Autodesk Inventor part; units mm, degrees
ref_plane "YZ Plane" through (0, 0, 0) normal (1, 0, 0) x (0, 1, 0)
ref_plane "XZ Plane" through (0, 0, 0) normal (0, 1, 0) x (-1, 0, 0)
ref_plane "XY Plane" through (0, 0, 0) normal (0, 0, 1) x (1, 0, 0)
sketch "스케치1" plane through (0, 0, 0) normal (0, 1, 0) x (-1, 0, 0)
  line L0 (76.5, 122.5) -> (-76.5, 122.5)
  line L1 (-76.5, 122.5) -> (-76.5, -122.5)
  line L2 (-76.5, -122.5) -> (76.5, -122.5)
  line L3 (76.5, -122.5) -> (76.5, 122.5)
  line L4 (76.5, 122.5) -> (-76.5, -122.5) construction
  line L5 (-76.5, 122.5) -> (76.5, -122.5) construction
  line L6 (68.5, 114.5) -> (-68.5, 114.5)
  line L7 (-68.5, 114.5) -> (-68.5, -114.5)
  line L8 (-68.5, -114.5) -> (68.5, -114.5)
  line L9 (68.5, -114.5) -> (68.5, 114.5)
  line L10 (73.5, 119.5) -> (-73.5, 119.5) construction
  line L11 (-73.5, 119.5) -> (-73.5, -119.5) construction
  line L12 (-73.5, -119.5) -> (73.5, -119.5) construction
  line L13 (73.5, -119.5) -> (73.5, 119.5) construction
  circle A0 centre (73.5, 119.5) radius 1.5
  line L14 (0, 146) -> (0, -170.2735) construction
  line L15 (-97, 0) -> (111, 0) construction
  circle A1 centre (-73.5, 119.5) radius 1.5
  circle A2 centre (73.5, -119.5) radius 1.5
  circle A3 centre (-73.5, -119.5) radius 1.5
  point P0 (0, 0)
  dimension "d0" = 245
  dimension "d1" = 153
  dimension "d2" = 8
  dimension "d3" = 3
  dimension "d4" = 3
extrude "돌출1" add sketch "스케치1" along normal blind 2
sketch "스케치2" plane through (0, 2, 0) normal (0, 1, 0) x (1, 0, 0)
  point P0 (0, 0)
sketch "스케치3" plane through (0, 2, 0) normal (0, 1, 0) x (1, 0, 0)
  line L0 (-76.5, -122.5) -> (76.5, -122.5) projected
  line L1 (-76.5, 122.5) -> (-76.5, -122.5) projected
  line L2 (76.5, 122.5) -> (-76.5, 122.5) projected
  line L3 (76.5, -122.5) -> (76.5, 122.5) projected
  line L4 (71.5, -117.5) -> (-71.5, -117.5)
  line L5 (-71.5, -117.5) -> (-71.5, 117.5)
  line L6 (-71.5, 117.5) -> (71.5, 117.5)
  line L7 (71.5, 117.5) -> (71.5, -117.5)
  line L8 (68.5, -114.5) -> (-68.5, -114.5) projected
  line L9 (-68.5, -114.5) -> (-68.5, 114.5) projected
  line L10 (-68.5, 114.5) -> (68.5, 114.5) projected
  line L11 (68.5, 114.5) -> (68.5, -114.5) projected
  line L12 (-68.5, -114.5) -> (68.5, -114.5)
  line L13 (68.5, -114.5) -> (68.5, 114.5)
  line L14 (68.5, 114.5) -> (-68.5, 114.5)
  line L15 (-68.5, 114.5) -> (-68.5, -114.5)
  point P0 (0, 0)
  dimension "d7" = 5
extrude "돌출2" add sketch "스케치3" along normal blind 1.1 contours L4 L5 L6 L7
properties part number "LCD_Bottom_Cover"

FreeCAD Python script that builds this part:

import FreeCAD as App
import Part
import Sketcher
from FreeCAD import Vector
Q = App.Units.Quantity


def add_polygon(sketch, points):
    """Adds a closed chain of lines whose ends are joined by coincident constraints."""
    first, n = sketch.GeometryCount, len(points)
    for a, b in zip(points, points[1:] + points[:1]):
        sketch.addGeometry(Part.LineSegment(App.Vector(*a, 0), App.Vector(*b, 0)), False)
    for i in range(n):
        sketch.addConstraint(Sketcher.Constraint("Coincident", first + i, 2, first + (i + 1) % n, 1))

doc = App.newDocument("Part")
body = doc.addObject("PartDesign::Body", "Body")

# Sketch on XZ plane
sketch1 = body.newObject("Sketcher::SketchObject", "Sketch")
sketch1.AttachmentSupport = (doc.getObject("XZ_Plane"), [""])
sketch1.MapMode = "FlatFace"
add_polygon(sketch1, [(-76.5, -122.5), (-76.5, 122.5), (76.5, 122.5), (76.5, -122.5)])  # lines 0-3
sketch1.addGeometry(Part.Circle(Vector(73.5, -119.5, 0), Vector(0, 0, 1), 1.5), False)  # 4
sketch1.addGeometry(Part.Circle(Vector(-73.5, -119.5, 0), Vector(0, 0, 1), 1.5), False)  # 5
sketch1.addGeometry(Part.Circle(Vector(73.5, 119.5, 0), Vector(0, 0, 1), 1.5), False)  # 6
add_polygon(sketch1, [(68.5, 114.5), (-68.5, 114.5), (-68.5, -114.5), (68.5, -114.5)])  # lines 7-10
sketch1.addGeometry(Part.Circle(Vector(-73.5, 119.5, 0), Vector(0, 0, 1), 1.5), False)  # 11
sketch1.addConstraint([
    Sketcher.Constraint("Vertical", 0),
    Sketcher.Constraint("Horizontal", 1),
    Sketcher.Constraint("Vertical", 2),
    Sketcher.Constraint("Horizontal", 3),
    Sketcher.Constraint("Horizontal", 7),
    Sketcher.Constraint("Vertical", 8),
    Sketcher.Constraint("Horizontal", 9),
    Sketcher.Constraint("Vertical", 10),
    Sketcher.Constraint("Equal", 4, 5),
    Sketcher.Constraint("Equal", 5, 6),
    Sketcher.Constraint("Equal", 6, 11),
    Sketcher.Constraint("Symmetric", 5, 3, 6, 3, -1, 1),
    Sketcher.Constraint("Symmetric", 4, 3, 11, 3, -1, 1),
    Sketcher.Constraint("Symmetric", 0, 2, 2, 2, -1, 1),
    Sketcher.Constraint("Symmetric", 7, 2, 9, 2, -1, 1),
    Sketcher.Constraint("Symmetric", 4, 3, 5, 3, -2),
    Sketcher.Constraint("Diameter", 4, Q("3 mm")),
    Sketcher.Constraint("DistanceX", 1, 1, 1, 2, Q("153 mm")),
    Sketcher.Constraint("DistanceY", 0, 1, 0, 2, Q("245 mm")),
    Sketcher.Constraint("DistanceX", 0, 2, 11, 3, Q("3 mm")),
    Sketcher.Constraint("DistanceY", 11, 3, 0, 2, Q("3 mm")),
    Sketcher.Constraint("DistanceX", 0, 2, 7, 2, Q("8 mm")),
    Sketcher.Constraint("DistanceY", 7, 2, 0, 2, Q("8 mm")),
])
pad1 = body.newObject("PartDesign::Pad", "Pad")
pad1.Profile = sketch1
pad1.Length = 2
pad1.Reversed = True

# Sketch on XZ plane
sketch2 = body.newObject("Sketcher::SketchObject", "Sketch001")
sketch2.AttachmentSupport = (doc.getObject("XZ_Plane"), [""])
sketch2.MapMode = "FlatFace"
sketch2.AttachmentOffset = App.Placement(Vector(0, 0, -2), App.Rotation())
add_polygon(sketch2, [(-72, 118), (72, 118), (72, -118), (-72, -118)])  # lines 0-3
add_polygon(sketch2, [(68, -114), (68, 114), (-68, 114), (-68, -114)])  # lines 4-7
sketch2.addConstraint([
    Sketcher.Constraint("Horizontal", 0),
    Sketcher.Constraint("Vertical", 1),
    Sketcher.Constraint("Horizontal", 2),
    Sketcher.Constraint("Vertical", 3),
    Sketcher.Constraint("Vertical", 4),
    Sketcher.Constraint("Horizontal", 5),
    Sketcher.Constraint("Vertical", 6),
    Sketcher.Constraint("Horizontal", 7),
    Sketcher.Constraint("Symmetric", 0, 2, 2, 2, -1, 1),
    Sketcher.Constraint("Symmetric", 4, 2, 6, 2, -1, 1),
    Sketcher.Constraint("DistanceX", 0, 1, 0, 2, Q("143 mm")),
    Sketcher.Constraint("DistanceX", 5, 2, 5, 1, Q("137 mm")),
    Sketcher.Constraint("DistanceY", 1, 2, 1, 1, Q("235 mm")),
    Sketcher.Constraint("DistanceY", 4, 1, 4, 2, Q("229 mm")),
])
pad2 = body.newObject("PartDesign::Pad", "Pad001")
pad2.Profile = sketch2
pad2.Length = 1.1
pad2.Reversed = True

doc.recompute()
